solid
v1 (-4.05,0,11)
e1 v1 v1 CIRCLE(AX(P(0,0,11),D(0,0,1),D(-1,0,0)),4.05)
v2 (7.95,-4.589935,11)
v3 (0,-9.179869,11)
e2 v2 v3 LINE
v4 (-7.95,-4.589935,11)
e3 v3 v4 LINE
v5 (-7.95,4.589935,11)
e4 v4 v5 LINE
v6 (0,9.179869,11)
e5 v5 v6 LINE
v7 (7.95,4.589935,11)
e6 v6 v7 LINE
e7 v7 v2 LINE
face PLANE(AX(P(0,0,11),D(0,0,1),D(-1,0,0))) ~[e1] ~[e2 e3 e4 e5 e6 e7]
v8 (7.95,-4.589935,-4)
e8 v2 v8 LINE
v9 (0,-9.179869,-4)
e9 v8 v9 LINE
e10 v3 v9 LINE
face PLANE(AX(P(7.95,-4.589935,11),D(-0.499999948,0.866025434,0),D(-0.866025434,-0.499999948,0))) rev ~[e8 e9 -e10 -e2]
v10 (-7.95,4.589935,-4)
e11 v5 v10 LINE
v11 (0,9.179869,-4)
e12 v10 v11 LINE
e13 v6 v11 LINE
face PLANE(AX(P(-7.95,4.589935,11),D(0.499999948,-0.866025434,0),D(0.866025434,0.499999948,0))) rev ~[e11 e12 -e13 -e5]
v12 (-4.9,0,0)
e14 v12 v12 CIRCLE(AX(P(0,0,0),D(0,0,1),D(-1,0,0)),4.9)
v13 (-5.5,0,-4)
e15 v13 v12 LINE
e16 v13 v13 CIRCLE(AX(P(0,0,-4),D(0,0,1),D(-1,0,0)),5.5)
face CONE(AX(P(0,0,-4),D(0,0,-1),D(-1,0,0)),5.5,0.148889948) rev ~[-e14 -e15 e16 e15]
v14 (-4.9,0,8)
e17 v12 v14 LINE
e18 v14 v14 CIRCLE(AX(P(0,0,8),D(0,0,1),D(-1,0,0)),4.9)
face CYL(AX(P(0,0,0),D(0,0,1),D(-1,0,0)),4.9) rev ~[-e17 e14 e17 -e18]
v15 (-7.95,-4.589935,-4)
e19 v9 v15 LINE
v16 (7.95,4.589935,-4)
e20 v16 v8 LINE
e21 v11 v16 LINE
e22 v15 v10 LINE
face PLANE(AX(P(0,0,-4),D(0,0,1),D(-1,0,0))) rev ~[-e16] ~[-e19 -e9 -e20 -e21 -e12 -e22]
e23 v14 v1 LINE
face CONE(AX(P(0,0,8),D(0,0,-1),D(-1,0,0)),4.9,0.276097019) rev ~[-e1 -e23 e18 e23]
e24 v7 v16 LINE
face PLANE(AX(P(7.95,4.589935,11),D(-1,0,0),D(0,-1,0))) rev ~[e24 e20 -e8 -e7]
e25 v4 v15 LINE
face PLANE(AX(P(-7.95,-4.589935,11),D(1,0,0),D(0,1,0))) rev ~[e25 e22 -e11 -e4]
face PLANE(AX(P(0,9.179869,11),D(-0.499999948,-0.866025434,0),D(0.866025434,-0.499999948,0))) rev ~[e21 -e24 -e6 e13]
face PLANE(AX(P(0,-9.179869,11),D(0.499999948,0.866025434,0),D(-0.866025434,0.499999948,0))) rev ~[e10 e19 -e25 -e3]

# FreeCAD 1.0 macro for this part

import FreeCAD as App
import Part
import Sketcher
Q = App.Units.Quantity


def add_polygon(sketch, points):
    """Adds a closed chain of lines whose ends are joined by coincident constraints."""
    first, n = sketch.GeometryCount, len(points)
    for a, b in zip(points, points[1:] + points[:1]):
        sketch.addGeometry(Part.LineSegment(App.Vector(*a, 0), App.Vector(*b, 0)), False)
    for i in range(n):
        sketch.addConstraint(Sketcher.Constraint("Coincident", first + i, 2, first + (i + 1) % n, 1))

doc = App.newDocument("Part")
params = doc.addObject("Spreadsheet::Sheet", "Params")
for row, (alias, value) in enumerate([
    ("sketch1_height", "8 mm"),
    ("sketch1_height2", "15 mm"),
    ("sketch1_width", "24.5 mm"),
    ("sketch1_width2", "25.95 mm"),
    ("revolution_angle", "360 deg"),
    ("sketch2_diameter", "60 mm"),
], start=1):
    params.set(f"A{row}", alias)
    params.set(f"B{row}", "=" + value)
    params.setAlias(f"B{row}", alias)

body = doc.addObject("PartDesign::Body", "Body")

sketch1 = body.newObject("Sketcher::SketchObject", "Sketch")
sketch1.AttachmentSupport = (doc.getObject("XZ_Plane"), [""])
sketch1.MapMode = "FlatFace"
add_polygon(sketch1, [(-5.5, -4), (-4.9, 0), (-4.9, 8), (-4, 11), (-30, 11), (-30, -4)])
sketch1.addConstraint([
    Sketcher.Constraint("Vertical", 1),
    Sketcher.Constraint("Horizontal", 3),
    Sketcher.Constraint("Vertical", 4),
    Sketcher.Constraint("Horizontal", 5),
    Sketcher.Constraint("PointOnObject", 0, 2, -1),
    Sketcher.Constraint("DistanceY", 1, 1, 1, 2, 8.0),
    Sketcher.Constraint("DistanceY", 4, 2, 4, 1, 15.0),
    Sketcher.Constraint("DistanceX", 5, 1, 5, 2, 24.5),
    Sketcher.Constraint("DistanceY", -1, 1, 2, 2, 11.0),
    Sketcher.Constraint("DistanceX", 3, 2, -1, 1, 30.0),
    Sketcher.Constraint("DistanceX", 3, 2, 3, 1, 25.95),
    Sketcher.Constraint("DistanceX", 0, 2, -1, 1, 4.9),
])
sketch1.setExpression("Constraints[11]", "Params.sketch1_height")
sketch1.setExpression("Constraints[12]", "Params.sketch1_height2")
sketch1.setExpression("Constraints[13]", "Params.sketch1_width")
sketch1.setExpression("Constraints[16]", "Params.sketch1_width2")
revolution = body.newObject("PartDesign::Revolution", "Revolution")
revolution.Profile = sketch1
revolution.ReferenceAxis = (sketch1, ["V_Axis"])
revolution.setExpression("Angle", "Params.revolution_angle")

sketch2 = body.newObject("Sketcher::SketchObject", "Sketch001")
sketch2.AttachmentSupport = (doc.getObject("XY_Plane"), [""])
sketch2.MapMode = "FlatFace"
sketch2.AttachmentOffset = App.Placement(App.Vector(0, 0, 11), App.Rotation())
sketch2.addGeometry(Part.Circle(App.Vector(0, 0, 0), App.Vector(0, 0, 1), 30), False)
add_polygon(sketch2, [(-8, 5), (0, 9), (8, 5), (8, -5), (0, -9), (-8, -5)])
sketch2.addConstraint([
    Sketcher.Constraint("Vertical", 3),
    Sketcher.Constraint("Vertical", 6),
    Sketcher.Constraint("Coincident", 0, 3, -1, 1),
    Sketcher.Constraint("Symmetric", 1, 2, 4, 2, -1, 1),
    Sketcher.Constraint("Symmetric", 2, 2, 5, 2, -1, 1),
    Sketcher.Constraint("PointOnObject", 1, 2, -2),
    Sketcher.Constraint("Parallel", 1, 4),
    Sketcher.Constraint("Horizontal", 3, 2, 5, 2),
    Sketcher.Constraint("Diameter", 0, 60.0),
    Sketcher.Constraint("Angle", 1, Q("29.999997 deg")),
    Sketcher.Constraint("DistanceX", 5, 2, 3, 2, 15.9),
    Sketcher.Constraint("DistanceY", 3, 2, 3, 1, 9.17987),
])
sketch2.setExpression("Constraints[14]", "Params.sketch2_diameter")
pocket1 = body.newObject("PartDesign::Pocket", "Pocket")
pocket1.Profile = sketch2
pocket1.Type = "ThroughAll"

doc.recompute()
